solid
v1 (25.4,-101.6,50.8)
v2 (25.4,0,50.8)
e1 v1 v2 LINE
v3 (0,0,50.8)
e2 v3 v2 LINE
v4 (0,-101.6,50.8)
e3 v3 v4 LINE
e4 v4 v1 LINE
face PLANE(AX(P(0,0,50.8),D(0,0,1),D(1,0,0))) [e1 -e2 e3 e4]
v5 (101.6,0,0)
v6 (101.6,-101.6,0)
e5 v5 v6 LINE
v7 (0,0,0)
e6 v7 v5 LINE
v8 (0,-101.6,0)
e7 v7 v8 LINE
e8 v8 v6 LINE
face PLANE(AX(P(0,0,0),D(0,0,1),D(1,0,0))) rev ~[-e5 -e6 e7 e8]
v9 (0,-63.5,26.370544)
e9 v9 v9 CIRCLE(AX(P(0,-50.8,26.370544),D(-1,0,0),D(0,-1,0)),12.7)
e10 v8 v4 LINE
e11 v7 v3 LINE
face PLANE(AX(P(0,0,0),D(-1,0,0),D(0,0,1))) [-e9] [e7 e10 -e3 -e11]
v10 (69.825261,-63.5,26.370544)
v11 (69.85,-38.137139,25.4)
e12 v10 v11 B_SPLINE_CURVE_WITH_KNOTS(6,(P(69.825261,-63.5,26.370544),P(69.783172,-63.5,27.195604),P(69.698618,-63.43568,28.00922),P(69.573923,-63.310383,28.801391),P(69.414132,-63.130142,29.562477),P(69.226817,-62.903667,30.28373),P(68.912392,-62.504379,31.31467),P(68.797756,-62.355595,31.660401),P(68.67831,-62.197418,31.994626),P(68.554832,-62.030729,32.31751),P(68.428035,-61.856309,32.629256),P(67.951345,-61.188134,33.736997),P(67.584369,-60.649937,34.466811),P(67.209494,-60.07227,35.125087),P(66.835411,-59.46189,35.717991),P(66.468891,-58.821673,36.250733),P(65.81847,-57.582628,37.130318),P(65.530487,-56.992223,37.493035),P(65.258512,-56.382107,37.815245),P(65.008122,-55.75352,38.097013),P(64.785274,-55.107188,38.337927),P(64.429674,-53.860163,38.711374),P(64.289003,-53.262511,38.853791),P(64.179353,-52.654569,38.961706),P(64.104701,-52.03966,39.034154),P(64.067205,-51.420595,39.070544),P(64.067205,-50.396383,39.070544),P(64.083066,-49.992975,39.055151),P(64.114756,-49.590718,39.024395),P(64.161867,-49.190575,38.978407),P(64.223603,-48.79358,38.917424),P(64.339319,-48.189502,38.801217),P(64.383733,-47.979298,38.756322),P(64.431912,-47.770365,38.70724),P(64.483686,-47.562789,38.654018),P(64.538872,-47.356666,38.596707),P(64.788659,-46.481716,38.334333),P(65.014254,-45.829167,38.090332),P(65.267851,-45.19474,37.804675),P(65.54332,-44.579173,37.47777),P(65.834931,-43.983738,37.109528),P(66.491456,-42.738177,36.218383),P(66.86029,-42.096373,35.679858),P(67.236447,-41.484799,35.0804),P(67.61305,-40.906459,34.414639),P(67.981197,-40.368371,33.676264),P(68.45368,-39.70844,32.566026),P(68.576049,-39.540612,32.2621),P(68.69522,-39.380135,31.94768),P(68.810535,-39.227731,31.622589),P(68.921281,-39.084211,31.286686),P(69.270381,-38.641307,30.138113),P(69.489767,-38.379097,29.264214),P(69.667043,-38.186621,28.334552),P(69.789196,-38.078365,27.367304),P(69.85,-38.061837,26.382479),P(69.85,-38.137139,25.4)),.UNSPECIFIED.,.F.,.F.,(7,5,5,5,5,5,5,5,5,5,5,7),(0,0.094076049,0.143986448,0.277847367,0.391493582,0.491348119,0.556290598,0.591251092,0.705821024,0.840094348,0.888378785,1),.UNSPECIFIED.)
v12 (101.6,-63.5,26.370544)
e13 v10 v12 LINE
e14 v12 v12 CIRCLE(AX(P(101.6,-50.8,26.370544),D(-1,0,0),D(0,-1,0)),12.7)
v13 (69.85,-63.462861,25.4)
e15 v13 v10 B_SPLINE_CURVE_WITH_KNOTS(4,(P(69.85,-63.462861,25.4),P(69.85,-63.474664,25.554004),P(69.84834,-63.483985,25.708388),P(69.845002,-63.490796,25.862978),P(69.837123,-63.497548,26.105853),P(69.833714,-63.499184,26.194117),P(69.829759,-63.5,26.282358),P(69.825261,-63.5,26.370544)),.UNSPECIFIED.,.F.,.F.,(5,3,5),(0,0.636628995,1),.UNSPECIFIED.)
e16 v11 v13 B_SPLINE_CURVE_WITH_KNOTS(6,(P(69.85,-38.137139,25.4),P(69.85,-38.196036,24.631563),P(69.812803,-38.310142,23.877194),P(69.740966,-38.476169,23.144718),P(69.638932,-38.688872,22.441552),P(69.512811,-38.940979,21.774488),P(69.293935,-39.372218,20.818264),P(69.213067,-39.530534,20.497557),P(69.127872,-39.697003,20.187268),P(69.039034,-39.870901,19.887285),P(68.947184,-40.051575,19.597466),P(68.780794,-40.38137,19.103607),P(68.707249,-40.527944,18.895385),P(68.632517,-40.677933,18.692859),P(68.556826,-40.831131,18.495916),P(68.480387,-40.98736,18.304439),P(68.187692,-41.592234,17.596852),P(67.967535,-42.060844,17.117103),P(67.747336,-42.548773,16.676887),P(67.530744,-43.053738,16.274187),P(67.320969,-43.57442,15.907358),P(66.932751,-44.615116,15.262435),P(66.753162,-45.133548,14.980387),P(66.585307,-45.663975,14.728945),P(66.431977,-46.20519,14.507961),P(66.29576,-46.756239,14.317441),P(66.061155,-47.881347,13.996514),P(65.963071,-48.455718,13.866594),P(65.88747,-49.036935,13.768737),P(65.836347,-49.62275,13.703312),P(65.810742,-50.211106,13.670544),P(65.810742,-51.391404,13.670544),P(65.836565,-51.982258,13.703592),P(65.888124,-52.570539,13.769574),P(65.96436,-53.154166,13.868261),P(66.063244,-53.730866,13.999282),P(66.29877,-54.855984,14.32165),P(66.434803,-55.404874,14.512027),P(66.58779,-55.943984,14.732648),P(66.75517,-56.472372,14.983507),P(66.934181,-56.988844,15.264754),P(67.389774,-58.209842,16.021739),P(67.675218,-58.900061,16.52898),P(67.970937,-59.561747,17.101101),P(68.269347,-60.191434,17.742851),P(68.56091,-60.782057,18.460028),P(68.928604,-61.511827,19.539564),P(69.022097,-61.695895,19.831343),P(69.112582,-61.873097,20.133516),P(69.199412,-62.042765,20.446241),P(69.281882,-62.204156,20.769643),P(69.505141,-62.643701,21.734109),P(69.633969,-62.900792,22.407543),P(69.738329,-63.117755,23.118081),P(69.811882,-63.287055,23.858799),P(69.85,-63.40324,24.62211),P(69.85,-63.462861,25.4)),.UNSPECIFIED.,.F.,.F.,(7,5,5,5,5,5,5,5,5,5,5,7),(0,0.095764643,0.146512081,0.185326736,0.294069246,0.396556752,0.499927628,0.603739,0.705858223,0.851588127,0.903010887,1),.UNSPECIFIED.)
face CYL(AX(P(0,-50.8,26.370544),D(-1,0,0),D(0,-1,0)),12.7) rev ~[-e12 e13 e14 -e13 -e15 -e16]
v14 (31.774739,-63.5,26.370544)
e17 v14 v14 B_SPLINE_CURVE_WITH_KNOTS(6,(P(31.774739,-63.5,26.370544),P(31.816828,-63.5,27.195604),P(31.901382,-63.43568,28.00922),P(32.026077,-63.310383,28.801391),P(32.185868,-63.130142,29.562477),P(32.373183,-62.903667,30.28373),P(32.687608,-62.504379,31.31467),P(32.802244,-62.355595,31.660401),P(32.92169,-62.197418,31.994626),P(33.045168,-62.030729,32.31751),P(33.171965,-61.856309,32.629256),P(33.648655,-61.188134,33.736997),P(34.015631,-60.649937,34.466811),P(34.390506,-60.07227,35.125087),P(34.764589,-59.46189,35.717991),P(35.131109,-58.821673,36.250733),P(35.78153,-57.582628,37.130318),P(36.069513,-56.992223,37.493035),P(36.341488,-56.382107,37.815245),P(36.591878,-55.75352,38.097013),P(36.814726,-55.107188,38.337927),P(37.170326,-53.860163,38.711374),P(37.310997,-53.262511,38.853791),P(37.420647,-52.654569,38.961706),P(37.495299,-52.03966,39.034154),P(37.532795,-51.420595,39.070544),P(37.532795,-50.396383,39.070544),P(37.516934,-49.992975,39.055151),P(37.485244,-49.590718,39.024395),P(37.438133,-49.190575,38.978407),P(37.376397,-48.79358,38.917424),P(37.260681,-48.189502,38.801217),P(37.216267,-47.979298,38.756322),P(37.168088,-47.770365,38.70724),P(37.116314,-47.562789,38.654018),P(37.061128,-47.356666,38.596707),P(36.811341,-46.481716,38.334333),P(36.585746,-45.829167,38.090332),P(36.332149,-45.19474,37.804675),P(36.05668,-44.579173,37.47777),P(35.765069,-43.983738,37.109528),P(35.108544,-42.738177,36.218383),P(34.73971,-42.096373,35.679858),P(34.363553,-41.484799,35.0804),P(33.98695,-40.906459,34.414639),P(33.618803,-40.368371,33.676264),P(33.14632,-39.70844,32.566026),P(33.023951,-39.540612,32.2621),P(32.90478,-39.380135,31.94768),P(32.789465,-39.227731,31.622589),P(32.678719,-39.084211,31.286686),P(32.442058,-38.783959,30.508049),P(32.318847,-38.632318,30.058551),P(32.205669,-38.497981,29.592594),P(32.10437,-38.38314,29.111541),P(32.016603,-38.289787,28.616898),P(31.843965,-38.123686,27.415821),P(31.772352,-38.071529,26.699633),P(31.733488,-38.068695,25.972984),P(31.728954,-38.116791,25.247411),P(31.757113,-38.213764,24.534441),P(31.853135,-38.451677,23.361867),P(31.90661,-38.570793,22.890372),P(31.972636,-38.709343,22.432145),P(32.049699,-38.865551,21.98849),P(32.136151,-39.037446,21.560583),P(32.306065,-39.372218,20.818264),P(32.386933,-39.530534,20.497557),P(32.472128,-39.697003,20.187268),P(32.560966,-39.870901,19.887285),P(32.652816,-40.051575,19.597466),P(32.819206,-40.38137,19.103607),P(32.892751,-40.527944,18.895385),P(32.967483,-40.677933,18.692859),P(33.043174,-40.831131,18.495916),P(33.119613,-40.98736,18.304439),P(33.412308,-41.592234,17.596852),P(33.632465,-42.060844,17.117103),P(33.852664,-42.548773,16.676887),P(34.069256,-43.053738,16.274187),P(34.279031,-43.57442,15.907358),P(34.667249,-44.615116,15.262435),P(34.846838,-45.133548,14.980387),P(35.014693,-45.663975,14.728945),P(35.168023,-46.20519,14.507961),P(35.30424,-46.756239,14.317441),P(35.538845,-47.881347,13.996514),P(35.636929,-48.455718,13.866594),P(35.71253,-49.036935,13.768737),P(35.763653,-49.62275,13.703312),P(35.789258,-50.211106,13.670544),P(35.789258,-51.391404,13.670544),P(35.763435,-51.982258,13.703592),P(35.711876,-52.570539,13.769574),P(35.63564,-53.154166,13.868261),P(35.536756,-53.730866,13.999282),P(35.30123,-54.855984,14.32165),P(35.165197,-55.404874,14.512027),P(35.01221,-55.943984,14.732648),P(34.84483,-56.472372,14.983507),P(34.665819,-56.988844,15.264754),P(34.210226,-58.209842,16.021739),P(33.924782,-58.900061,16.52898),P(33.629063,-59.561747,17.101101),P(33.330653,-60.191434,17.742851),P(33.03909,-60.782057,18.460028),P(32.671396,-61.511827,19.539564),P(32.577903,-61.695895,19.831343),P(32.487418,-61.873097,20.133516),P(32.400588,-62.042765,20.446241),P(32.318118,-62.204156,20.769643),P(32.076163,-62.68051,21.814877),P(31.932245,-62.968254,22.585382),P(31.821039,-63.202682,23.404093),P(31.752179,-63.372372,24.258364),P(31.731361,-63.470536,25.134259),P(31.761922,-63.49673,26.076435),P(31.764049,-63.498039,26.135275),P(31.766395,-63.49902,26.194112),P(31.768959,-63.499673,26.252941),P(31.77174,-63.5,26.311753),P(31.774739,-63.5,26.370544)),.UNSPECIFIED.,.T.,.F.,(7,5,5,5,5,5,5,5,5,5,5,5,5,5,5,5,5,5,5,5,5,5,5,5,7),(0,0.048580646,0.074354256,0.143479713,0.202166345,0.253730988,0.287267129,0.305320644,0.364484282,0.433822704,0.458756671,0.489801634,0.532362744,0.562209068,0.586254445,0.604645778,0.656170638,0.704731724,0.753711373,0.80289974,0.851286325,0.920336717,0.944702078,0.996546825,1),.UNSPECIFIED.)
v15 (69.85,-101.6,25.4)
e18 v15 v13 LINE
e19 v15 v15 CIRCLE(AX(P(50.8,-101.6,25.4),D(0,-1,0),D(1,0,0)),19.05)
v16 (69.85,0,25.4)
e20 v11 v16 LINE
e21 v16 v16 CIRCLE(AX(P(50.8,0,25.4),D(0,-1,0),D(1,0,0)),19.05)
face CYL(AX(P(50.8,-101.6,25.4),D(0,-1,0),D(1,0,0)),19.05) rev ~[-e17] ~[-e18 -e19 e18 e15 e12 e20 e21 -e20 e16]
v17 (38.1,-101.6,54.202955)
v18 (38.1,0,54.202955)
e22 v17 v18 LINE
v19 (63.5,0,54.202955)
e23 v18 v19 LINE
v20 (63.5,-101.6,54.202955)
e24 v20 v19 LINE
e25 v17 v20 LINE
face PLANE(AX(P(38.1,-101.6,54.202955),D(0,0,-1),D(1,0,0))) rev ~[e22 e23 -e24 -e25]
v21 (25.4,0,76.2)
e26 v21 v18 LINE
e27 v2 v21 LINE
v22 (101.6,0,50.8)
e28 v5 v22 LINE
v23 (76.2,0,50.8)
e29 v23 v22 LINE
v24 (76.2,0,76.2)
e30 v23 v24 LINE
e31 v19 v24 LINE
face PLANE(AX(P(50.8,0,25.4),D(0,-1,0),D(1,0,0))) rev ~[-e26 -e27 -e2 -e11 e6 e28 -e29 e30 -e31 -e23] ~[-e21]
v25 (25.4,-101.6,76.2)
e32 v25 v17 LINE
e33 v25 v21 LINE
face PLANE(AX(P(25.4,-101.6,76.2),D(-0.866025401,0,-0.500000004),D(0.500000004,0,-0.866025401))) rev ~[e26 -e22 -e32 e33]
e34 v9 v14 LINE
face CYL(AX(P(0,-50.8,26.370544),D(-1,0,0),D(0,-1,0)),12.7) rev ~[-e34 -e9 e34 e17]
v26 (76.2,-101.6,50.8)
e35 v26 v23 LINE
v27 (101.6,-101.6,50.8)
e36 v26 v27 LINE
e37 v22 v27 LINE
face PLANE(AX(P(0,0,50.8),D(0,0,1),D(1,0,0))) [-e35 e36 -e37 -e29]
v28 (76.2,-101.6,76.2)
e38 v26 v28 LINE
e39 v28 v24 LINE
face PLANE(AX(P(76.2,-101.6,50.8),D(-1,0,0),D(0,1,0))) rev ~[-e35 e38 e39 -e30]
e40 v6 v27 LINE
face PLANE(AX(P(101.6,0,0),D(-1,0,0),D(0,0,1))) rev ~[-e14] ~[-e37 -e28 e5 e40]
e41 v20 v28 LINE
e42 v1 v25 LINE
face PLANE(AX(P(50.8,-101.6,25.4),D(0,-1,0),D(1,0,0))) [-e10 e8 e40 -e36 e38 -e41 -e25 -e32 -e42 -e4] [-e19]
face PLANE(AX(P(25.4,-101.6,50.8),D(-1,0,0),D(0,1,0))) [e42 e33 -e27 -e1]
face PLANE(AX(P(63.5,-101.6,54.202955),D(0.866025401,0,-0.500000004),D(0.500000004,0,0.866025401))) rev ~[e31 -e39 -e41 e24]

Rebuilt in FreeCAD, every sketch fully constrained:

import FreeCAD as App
import Part
import Sketcher

V = App.Vector
Q = App.Units.Quantity

doc = App.newDocument("Part")
body = doc.addObject("PartDesign::Body", "Body")

# Sketch on XZ plane
sketch1 = body.newObject("Sketcher::SketchObject", "Sketch")
sketch1.AttachmentSupport = (doc.getObject("XZ_Plane"), [""])
sketch1.MapMode = "FlatFace"
sketch1.addGeometry([
    Part.LineSegment(V(0, 51, 0), V(0, 0, 0)),
    Part.LineSegment(V(0, 0, 0), V(102, 0, 0)),
    Part.LineSegment(V(102, 0, 0), V(102, 51, 0)),
    Part.LineSegment(V(102, 51, 0), V(0, 51, 0)),
], False)
sketch1.addConstraint([
    Sketcher.Constraint("Coincident", 0, 2, 1, 1),
    Sketcher.Constraint("Coincident", 1, 2, 2, 1),
    Sketcher.Constraint("Coincident", 2, 2, 3, 1),
    Sketcher.Constraint("Coincident", 3, 2, 0, 1),
    Sketcher.Constraint("Vertical", 0),
    Sketcher.Constraint("Horizontal", 1),
    Sketcher.Constraint("Vertical", 2),
    Sketcher.Constraint("Horizontal", 3),
    Sketcher.Constraint("Coincident", 0, 2, -1, 1),
    Sketcher.Constraint("DistanceX", 1, 1, 1, 2, Q("4 in")),
    Sketcher.Constraint("DistanceY", 0, 2, 0, 1, Q("2 in")),
])
pad1 = body.newObject("PartDesign::Pad", "Pad")
pad1.Profile = sketch1
pad1.Length = Q("4 in")

# Sketch on XY plane
sketch2 = body.newObject("Sketcher::SketchObject", "Sketch001")
sketch2.AttachmentSupport = (doc.getObject("XY_Plane"), [""])
sketch2.MapMode = "FlatFace"
sketch2.AttachmentOffset = App.Placement(V(0, 0, 2 * 25.4), App.Rotation())
sketch2.addGeometry([
    Part.LineSegment(V(25, 0, 0), V(25, -102, 0)),
    Part.LineSegment(V(25, -102, 0), V(76, -102, 0)),
    Part.LineSegment(V(76, -102, 0), V(76, 0, 0)),
    Part.LineSegment(V(76, 0, 0), V(25, 0, 0)),
], False)
sketch2.addConstraint([
    Sketcher.Constraint("Coincident", 0, 2, 1, 1),
    Sketcher.Constraint("Coincident", 1, 2, 2, 1),
    Sketcher.Constraint("Coincident", 2, 2, 3, 1),
    Sketcher.Constraint("Coincident", 3, 2, 0, 1),
    Sketcher.Constraint("Vertical", 0),
    Sketcher.Constraint("Horizontal", 1),
    Sketcher.Constraint("Vertical", 2),
    Sketcher.Constraint("Horizontal", 3),
    Sketcher.Constraint("PointOnObject", 2, 2, -1),
    Sketcher.Constraint("DistanceX", 1, 1, 1, 2, Q("2 in")),
    Sketcher.Constraint("DistanceY", 0, 2, 0, 1, Q("4 in")),
    Sketcher.Constraint("DistanceX", -1, 1, 0, 2, Q("1 in")),
])
pad2 = body.newObject("PartDesign::Pad", "Pad001")
pad2.Profile = sketch2
pad2.Length = Q("1 in")

# Sketch on XZ plane
sketch3 = body.newObject("Sketcher::SketchObject", "Sketch002")
sketch3.AttachmentSupport = (doc.getObject("XZ_Plane"), [""])
sketch3.MapMode = "FlatFace"
sketch3.AttachmentOffset = App.Placement(V(0, 0, 4 * 25.4), App.Rotation())
sketch3.addGeometry([
    Part.LineSegment(V(76, 76, 0), V(25, 76, 0)),
    Part.LineSegment(V(25, 76, 0), V(38, 54, 0)),
    Part.LineSegment(V(38, 54, 0), V(64, 54, 0)),
    Part.LineSegment(V(64, 54, 0), V(76, 76, 0)),
], False)
sketch3.addConstraint([
    Sketcher.Constraint("Coincident", 0, 2, 1, 1),
    Sketcher.Constraint("Coincident", 1, 2, 2, 1),
    Sketcher.Constraint("Coincident", 2, 2, 3, 1),
    Sketcher.Constraint("Coincident", 3, 2, 0, 1),
    Sketcher.Constraint("Horizontal", 0),
    Sketcher.Constraint("Horizontal", 2),
    Sketcher.Constraint("Equal", 1, 3),
    Sketcher.Constraint("DistanceX", 0, 2, 0, 1, Q("2 in")),
    Sketcher.Constraint("DistanceX", 2, 1, 2, 2, Q("1 in")),
    Sketcher.Constraint("Distance", 1, Q("1 in")),
    Sketcher.Constraint("DistanceX", -1, 1, 0, 2, Q("1 in")),
    Sketcher.Constraint("DistanceY", -1, 1, 0, 2, Q("3 in")),
])
pocket1 = body.newObject("PartDesign::Pocket", "Pocket")
pocket1.Profile = sketch3
pocket1.Length = Q("4 in")

# Sketch on XZ plane
sketch4 = body.newObject("Sketcher::SketchObject", "Sketch003")
sketch4.AttachmentSupport = (doc.getObject("XZ_Plane"), [""])
sketch4.MapMode = "FlatFace"
sketch4.AttachmentOffset = App.Placement(V(0, 0, 4 * 25.4), App.Rotation())
sketch4.addGeometry(Part.Circle(V(51, 25, 0), V(0, 0, 1), 19), False)
sketch4.addConstraint([
    Sketcher.Constraint("Diameter", 0, Q("1.5 in")),
    Sketcher.Constraint("DistanceX", -1, 1, 0, 3, Q("2 in")),
    Sketcher.Constraint("DistanceY", -1, 1, 0, 3, Q("1 in")),
])
pocket2 = body.newObject("PartDesign::Pocket", "Pocket001")
pocket2.Profile = sketch4
pocket2.Length = Q("4 in")

# Sketch on YZ plane
sketch5 = body.newObject("Sketcher::SketchObject", "Sketch004")
sketch5.AttachmentSupport = (doc.getObject("YZ_Plane"), [""])
sketch5.MapMode = "FlatFace"
sketch5.addGeometry(Part.Circle(V(-51, 26, 0), V(0, 0, 1), 13), False)
sketch5.addConstraint([
    Sketcher.Constraint("Diameter", 0, Q("1 in")),
    Sketcher.Constraint("DistanceX", 0, 3, -1, 1, Q("2 in")),
    Sketcher.Constraint("DistanceY", -1, 1, 0, 3, 26.370544),
])
pocket3 = body.newObject("PartDesign::Pocket", "Pocket002")
pocket3.Profile = sketch5
pocket3.Length = Q("4 in")
pocket3.Reversed = True

doc.recompute()
